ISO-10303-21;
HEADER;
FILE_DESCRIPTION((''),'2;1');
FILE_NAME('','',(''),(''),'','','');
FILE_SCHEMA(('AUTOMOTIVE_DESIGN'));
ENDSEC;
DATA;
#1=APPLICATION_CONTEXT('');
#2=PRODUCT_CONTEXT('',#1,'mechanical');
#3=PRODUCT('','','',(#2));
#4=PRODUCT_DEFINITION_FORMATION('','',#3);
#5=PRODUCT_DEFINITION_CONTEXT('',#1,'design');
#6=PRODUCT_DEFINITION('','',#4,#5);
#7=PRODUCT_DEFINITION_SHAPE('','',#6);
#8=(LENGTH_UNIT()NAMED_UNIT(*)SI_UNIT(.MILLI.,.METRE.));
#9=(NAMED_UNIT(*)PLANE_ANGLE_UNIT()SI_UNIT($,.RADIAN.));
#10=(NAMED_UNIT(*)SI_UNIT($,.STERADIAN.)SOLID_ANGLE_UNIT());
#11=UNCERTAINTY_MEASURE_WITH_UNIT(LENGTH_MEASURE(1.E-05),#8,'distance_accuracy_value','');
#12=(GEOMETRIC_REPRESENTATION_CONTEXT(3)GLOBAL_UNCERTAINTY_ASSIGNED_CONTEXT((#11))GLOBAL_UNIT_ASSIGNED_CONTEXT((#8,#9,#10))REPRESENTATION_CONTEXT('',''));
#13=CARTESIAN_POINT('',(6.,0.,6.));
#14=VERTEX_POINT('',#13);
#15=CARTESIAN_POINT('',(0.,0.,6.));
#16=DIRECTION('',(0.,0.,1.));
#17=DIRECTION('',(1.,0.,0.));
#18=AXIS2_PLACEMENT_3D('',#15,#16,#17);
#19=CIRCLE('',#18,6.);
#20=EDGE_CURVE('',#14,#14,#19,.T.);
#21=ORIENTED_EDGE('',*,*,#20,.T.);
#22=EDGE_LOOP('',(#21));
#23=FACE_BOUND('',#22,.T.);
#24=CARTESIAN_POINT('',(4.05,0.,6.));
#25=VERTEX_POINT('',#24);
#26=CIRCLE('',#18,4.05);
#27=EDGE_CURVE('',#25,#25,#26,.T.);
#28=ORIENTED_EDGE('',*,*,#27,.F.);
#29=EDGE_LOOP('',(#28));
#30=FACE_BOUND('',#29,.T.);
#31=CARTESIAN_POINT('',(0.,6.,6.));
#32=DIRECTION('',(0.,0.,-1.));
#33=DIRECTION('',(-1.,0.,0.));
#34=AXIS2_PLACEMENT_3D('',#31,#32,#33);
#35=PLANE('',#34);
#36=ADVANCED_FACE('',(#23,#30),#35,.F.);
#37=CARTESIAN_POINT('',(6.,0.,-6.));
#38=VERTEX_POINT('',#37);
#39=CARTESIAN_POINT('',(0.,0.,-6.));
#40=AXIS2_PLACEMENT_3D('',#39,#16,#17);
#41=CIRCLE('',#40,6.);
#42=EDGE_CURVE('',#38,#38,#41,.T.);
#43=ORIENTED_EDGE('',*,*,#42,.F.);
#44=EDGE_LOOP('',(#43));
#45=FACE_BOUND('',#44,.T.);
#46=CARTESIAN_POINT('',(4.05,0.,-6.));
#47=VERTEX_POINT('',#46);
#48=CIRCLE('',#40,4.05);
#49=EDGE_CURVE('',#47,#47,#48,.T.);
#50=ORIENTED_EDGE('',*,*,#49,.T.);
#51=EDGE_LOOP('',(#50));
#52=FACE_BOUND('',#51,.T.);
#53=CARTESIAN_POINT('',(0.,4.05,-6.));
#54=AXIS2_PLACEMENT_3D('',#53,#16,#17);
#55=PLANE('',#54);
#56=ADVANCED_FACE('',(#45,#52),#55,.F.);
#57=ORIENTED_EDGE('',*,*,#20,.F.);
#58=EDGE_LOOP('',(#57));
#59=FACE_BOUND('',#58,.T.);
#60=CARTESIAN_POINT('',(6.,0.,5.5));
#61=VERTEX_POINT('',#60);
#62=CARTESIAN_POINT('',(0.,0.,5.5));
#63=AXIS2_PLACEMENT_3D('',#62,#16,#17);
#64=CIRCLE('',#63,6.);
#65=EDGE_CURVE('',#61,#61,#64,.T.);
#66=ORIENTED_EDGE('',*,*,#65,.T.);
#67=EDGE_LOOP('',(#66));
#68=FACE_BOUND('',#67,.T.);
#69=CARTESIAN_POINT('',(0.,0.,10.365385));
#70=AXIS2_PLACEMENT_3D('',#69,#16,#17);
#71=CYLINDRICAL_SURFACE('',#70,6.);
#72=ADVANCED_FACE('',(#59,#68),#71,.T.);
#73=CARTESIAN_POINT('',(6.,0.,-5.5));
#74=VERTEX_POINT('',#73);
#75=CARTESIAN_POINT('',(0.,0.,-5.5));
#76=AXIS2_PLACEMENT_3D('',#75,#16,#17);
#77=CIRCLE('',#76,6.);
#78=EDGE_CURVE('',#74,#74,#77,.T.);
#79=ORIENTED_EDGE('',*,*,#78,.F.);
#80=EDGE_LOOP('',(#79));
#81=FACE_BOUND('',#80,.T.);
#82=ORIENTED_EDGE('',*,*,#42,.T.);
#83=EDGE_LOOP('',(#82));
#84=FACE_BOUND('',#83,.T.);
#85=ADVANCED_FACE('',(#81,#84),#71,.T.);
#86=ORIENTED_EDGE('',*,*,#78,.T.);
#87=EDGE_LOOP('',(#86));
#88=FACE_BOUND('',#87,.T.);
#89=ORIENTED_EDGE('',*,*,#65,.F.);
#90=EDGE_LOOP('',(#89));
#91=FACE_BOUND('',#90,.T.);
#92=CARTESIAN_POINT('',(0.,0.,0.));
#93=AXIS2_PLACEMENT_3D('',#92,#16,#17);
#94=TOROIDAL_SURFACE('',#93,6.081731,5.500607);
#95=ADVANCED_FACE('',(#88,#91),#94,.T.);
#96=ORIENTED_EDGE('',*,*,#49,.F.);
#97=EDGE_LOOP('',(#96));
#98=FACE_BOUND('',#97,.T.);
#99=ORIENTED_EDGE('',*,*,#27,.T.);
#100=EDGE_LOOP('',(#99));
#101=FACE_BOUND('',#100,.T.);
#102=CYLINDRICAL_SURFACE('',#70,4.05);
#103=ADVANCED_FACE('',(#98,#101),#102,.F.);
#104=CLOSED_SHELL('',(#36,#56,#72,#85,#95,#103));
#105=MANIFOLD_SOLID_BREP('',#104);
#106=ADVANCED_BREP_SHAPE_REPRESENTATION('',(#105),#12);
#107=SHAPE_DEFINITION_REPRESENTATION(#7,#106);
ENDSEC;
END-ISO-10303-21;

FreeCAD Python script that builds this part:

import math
import FreeCAD as App
import Part
import Sketcher

doc = App.newDocument("Part")
body = doc.addObject("PartDesign::Body", "Body")

sketch1 = body.newObject("Sketcher::SketchObject", "Sketch")
sketch1.AttachmentSupport = (doc.getObject("YZ_Plane"), [""])
sketch1.MapMode = "FlatFace"
sketch1.addGeometry([
    Part.LineSegment(App.Vector(6, 5.5, 0), App.Vector(6, 6, 0)),
    Part.LineSegment(App.Vector(6, 6, 0), App.Vector(4, 6, 0)),
    Part.LineSegment(App.Vector(4, 6, 0), App.Vector(4, -6, 0)),
    Part.LineSegment(App.Vector(4, -6, 0), App.Vector(6, -6, 0)),
    Part.LineSegment(App.Vector(6, -6, 0), App.Vector(6, -5.5, 0)),
    Part.ArcOfCircle(Part.Circle(App.Vector(6.1, 0, 0), App.Vector(0, 0, 1), 5.5), math.radians(-91), math.radians(91)),
], False)
sketch1.addConstraint([
    Sketcher.Constraint("Coincident", 0, 2, 1, 1),
    Sketcher.Constraint("Coincident", 1, 2, 2, 1),
    Sketcher.Constraint("Coincident", 2, 2, 3, 1),
    Sketcher.Constraint("Coincident", 3, 2, 4, 1),
    Sketcher.Constraint("Coincident", 4, 2, 5, 1),
    Sketcher.Constraint("Coincident", 5, 2, 0, 1),
    Sketcher.Constraint("Vertical", 0),
    Sketcher.Constraint("Horizontal", 1),
    Sketcher.Constraint("Vertical", 2),
    Sketcher.Constraint("Horizontal", 3),
    Sketcher.Constraint("Vertical", 4),
    Sketcher.Constraint("Symmetric", 0, 2, 3, 2, -1),
    Sketcher.Constraint("PointOnObject", 5, 3, -1),
    Sketcher.Constraint("DistanceY", 2, 2, 2, 1, 12.0),
    Sketcher.Constraint("DistanceY", 0, 1, 0, 2, 0.5),
    Sketcher.Constraint("DistanceX", -1, 1, 0, 2, 6.0),
    Sketcher.Constraint("DistanceX", 1, 2, 1, 1, 1.95),
    Sketcher.Constraint("Radius", 5, 5.500607),
])
revolution = body.newObject("PartDesign::Revolution", "Revolution")
revolution.Profile = sketch1
revolution.ReferenceAxis = (sketch1, ["V_Axis"])
revolution.Angle = 360

doc.recompute()
